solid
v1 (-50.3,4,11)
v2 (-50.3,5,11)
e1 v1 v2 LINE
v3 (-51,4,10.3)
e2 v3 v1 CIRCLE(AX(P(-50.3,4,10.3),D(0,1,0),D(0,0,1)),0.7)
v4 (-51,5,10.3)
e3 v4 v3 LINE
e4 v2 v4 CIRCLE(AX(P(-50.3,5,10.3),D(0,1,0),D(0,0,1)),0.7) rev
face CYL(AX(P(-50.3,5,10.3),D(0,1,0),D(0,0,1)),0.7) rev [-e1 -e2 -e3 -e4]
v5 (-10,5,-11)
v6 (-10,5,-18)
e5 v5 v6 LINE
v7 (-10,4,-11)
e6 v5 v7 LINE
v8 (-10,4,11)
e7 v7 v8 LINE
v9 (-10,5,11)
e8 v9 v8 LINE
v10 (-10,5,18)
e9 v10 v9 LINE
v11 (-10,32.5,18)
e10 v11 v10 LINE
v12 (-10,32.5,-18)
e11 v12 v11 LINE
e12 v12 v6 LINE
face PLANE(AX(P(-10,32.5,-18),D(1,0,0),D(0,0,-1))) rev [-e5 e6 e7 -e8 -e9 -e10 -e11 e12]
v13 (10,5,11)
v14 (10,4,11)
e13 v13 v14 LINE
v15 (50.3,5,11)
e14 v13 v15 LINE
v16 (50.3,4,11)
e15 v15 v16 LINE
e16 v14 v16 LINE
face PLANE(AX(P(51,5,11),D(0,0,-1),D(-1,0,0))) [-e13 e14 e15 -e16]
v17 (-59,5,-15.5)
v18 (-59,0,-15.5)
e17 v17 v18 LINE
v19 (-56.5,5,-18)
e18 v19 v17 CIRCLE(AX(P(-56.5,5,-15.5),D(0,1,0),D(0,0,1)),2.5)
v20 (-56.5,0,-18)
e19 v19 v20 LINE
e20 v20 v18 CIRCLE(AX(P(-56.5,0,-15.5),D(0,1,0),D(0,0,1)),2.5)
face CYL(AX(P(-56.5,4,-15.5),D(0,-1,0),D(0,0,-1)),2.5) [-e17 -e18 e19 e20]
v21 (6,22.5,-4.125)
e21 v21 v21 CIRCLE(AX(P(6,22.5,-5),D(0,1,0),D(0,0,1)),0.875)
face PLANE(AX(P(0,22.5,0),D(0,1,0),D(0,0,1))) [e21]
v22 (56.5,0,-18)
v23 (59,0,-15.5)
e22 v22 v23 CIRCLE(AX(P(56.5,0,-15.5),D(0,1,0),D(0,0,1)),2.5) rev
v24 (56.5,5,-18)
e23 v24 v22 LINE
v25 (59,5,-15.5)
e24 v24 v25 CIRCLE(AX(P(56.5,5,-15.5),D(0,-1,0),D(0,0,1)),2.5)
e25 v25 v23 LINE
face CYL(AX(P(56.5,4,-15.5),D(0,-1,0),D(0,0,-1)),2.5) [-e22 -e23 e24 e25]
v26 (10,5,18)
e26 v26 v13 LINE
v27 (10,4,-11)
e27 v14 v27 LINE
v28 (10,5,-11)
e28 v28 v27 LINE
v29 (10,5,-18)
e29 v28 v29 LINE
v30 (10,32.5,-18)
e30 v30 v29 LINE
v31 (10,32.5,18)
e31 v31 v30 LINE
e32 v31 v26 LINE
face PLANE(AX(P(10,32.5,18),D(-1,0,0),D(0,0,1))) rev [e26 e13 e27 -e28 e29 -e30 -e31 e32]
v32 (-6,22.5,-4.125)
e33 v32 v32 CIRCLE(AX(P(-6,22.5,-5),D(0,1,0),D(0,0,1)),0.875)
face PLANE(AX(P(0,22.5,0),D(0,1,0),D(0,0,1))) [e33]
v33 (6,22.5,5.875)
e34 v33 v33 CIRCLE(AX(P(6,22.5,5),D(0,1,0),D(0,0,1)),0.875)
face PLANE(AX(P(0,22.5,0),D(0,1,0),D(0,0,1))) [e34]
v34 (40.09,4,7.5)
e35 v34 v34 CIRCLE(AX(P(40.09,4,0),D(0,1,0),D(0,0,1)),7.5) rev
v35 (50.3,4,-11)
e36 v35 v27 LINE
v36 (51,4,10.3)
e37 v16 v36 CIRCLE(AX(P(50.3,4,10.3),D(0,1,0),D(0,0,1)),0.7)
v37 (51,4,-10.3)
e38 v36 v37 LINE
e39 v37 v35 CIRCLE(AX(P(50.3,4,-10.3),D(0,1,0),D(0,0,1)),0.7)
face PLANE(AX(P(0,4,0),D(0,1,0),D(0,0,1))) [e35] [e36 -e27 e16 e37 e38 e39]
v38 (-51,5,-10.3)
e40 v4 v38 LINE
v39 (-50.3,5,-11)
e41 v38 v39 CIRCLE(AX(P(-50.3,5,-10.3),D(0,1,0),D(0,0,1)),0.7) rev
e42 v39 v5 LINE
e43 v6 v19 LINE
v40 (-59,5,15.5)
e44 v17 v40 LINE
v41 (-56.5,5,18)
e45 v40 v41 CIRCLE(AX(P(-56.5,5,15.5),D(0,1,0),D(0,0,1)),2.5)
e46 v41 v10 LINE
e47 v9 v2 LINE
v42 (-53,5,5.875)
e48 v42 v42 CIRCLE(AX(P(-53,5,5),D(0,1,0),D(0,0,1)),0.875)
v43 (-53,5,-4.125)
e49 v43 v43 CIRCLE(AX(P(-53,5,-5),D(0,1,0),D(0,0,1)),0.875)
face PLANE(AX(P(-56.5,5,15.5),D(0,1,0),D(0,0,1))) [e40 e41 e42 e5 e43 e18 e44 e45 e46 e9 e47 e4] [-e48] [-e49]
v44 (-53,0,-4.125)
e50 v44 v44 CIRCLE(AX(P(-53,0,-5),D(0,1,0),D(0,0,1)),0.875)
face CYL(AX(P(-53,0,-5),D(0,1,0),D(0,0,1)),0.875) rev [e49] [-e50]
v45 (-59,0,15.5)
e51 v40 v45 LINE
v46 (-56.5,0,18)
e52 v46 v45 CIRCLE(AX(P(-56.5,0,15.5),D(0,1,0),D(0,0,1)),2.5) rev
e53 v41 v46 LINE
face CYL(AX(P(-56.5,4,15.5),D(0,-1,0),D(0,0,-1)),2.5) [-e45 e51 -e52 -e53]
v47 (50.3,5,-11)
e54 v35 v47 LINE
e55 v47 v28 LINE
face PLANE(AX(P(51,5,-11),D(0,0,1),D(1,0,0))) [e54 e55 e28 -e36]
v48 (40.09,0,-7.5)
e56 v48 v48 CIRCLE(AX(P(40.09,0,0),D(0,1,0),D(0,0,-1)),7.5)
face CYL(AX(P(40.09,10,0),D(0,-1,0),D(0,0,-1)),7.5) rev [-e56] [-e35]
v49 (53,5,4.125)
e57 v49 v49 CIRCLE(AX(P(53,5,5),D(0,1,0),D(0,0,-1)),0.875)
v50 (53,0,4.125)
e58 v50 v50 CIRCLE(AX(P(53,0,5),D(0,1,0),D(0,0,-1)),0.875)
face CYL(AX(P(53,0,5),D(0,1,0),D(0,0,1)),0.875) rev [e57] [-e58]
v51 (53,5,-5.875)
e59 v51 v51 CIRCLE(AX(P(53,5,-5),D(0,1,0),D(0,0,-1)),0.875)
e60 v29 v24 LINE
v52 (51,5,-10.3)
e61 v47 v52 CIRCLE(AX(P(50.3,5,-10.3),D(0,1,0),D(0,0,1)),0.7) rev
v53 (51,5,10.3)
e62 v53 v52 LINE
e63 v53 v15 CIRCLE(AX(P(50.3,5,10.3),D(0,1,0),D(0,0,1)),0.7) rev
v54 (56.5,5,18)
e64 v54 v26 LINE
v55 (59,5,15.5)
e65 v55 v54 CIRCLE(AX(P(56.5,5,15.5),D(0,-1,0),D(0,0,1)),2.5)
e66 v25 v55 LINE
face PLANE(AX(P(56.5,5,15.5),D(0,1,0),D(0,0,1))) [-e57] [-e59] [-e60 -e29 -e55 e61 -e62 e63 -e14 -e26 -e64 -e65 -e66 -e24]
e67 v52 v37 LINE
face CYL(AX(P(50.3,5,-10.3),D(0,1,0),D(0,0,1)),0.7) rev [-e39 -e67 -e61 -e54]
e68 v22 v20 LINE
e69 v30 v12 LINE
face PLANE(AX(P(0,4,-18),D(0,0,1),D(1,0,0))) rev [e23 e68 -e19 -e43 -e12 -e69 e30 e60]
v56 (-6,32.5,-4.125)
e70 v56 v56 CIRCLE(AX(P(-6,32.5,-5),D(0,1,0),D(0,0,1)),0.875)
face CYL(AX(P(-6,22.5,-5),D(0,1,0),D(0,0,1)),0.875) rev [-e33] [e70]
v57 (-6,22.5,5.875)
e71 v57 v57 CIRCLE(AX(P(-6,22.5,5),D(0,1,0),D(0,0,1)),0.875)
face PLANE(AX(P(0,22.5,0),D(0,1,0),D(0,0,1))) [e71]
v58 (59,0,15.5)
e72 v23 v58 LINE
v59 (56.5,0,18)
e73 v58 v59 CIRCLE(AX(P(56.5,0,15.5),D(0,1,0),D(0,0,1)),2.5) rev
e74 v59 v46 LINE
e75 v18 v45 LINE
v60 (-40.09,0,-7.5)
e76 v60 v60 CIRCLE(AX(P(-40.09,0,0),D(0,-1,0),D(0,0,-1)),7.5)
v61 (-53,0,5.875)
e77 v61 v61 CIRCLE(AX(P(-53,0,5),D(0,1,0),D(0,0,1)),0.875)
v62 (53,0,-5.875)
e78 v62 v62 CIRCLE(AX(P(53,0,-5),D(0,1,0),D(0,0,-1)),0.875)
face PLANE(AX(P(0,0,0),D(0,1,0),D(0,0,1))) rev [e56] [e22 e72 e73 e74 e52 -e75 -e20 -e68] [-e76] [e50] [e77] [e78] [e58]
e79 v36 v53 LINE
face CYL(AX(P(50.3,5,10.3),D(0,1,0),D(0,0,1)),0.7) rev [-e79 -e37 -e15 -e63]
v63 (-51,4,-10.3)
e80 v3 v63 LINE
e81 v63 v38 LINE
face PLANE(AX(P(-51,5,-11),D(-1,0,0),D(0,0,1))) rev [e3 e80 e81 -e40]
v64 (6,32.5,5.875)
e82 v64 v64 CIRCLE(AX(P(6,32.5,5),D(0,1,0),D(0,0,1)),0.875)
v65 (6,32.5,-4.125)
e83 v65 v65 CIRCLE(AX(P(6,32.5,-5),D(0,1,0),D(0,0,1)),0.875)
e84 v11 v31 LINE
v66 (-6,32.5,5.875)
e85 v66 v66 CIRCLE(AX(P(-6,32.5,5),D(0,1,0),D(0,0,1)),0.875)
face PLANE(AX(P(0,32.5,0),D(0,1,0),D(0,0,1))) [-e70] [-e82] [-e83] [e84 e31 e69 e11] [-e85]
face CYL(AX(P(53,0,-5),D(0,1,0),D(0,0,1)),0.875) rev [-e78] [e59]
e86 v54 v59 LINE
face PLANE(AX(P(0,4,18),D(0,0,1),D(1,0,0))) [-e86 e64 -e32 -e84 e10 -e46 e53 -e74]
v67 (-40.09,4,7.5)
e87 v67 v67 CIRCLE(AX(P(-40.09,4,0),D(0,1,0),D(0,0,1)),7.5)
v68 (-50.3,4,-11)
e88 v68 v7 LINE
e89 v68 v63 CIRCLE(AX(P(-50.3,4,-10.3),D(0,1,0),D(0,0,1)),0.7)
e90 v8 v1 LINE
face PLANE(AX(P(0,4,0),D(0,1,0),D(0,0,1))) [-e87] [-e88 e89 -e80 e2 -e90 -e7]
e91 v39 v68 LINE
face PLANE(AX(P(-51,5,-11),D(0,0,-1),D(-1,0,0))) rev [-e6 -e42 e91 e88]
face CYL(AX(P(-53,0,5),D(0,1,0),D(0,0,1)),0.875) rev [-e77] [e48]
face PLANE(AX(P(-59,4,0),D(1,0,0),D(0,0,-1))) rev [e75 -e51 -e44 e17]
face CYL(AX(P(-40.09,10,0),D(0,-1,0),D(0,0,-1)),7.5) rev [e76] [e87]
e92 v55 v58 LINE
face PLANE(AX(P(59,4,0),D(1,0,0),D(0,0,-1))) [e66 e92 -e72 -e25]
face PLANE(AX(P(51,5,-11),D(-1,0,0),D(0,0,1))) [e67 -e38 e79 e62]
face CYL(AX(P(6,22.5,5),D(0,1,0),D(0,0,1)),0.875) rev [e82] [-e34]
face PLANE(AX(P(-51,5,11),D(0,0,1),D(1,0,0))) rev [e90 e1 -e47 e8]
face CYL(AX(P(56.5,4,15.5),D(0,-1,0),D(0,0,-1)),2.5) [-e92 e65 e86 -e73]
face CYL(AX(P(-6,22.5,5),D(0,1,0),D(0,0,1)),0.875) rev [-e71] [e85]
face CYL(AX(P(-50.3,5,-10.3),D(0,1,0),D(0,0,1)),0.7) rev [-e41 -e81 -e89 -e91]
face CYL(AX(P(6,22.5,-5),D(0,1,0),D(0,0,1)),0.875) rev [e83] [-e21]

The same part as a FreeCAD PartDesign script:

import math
import FreeCAD as App
import Part
import Sketcher

V = App.Vector


def edges_at(feature, points):
    """Names of the edges that pass closest to the given points."""
    edges = feature.Shape.Edges
    near = lambda p: min(range(len(edges)), key=lambda i: edges[i].distToShape(Part.Vertex(*p))[0])
    return sorted({f"Edge{near(p) + 1}" for p in points})

doc = App.newDocument("Part")
body = doc.addObject("PartDesign::Body", "Body")

sketch1 = body.newObject("Sketcher::SketchObject", "Sketch")
sketch1.AttachmentSupport = (doc.getObject("XZ_Plane"), [""])
sketch1.MapMode = "FlatFace"
sketch1.addGeometry([
    Part.ArcOfCircle(Part.Circle(V(-56.5, -15.5, 0), V(0, 0, 1), 2.5), math.radians(180), math.radians(270)),
    Part.LineSegment(V(-59, -15.5, 0), V(-59, 15.5, 0)),
    Part.ArcOfCircle(Part.Circle(V(-56.5, 15.5, 0), V(0, 0, 1), 2.5), math.radians(90), math.radians(180)),
    Part.LineSegment(V(-56.5, 18, 0), V(56.5, 18, 0)),
    Part.ArcOfCircle(Part.Circle(V(56.5, 15.5, 0), V(0, 0, 1), 2.5), math.radians(0), math.radians(90)),
    Part.LineSegment(V(59, 15.5, 0), V(59, -15.5, 0)),
    Part.ArcOfCircle(Part.Circle(V(56.5, -15.5, 0), V(0, 0, 1), 2.5), math.radians(-90), math.radians(0)),
    Part.LineSegment(V(56.5, -18, 0), V(-56.5, -18, 0)),
], False)
sketch1.addConstraint([
    Sketcher.Constraint("Tangent", 0, 1, 1, 1),
    Sketcher.Constraint("Tangent", 1, 2, 2, 2),
    Sketcher.Constraint("Tangent", 2, 1, 3, 1),
    Sketcher.Constraint("Tangent", 3, 2, 4, 2),
    Sketcher.Constraint("Tangent", 4, 1, 5, 1),
    Sketcher.Constraint("Tangent", 5, 2, 6, 2),
    Sketcher.Constraint("Tangent", 6, 1, 7, 1),
    Sketcher.Constraint("Tangent", 7, 2, 0, 2),
    Sketcher.Constraint("Vertical", 1),
    Sketcher.Constraint("Horizontal", 3),
    Sketcher.Constraint("Vertical", 5),
    Sketcher.Constraint("Horizontal", 7),
    Sketcher.Constraint("Equal", 0, 2),
    Sketcher.Constraint("Equal", 2, 4),
    Sketcher.Constraint("Equal", 4, 6),
    Sketcher.Constraint("Symmetric", 0, 3, 4, 3, -1, 1),
    Sketcher.Constraint("Radius", 0, 2.5),
    Sketcher.Constraint("DistanceX", 3, 1, 3, 2, 113.0),
    Sketcher.Constraint("DistanceY", 1, 1, 1, 2, 31.0),
])
pad1 = body.newObject("PartDesign::Pad", "Pad")
pad1.Profile = sketch1
pad1.Length = 4
pad1.Reversed = True

sketch2 = body.newObject("Sketcher::SketchObject", "Sketch001")
sketch2.AttachmentSupport = (doc.getObject("XZ_Plane"), [""])
sketch2.MapMode = "FlatFace"
sketch2.AttachmentOffset = App.Placement(V(0, 0, -4), App.Rotation())
sketch2.addGeometry([
    Part.LineSegment(V(-10, -18, 0), V(-10, 18, 0)),
    Part.LineSegment(V(-10, 18, 0), V(10, 18, 0)),
    Part.LineSegment(V(10, 18, 0), V(10, -18, 0)),
    Part.LineSegment(V(10, -18, 0), V(-10, -18, 0)),
], False)
sketch2.addConstraint([
    Sketcher.Constraint("Coincident", 0, 2, 1, 1),
    Sketcher.Constraint("Coincident", 1, 2, 2, 1),
    Sketcher.Constraint("Coincident", 2, 2, 3, 1),
    Sketcher.Constraint("Coincident", 3, 2, 0, 1),
    Sketcher.Constraint("Vertical", 0),
    Sketcher.Constraint("Horizontal", 1),
    Sketcher.Constraint("Vertical", 2),
    Sketcher.Constraint("Horizontal", 3),
    Sketcher.Constraint("Symmetric", 0, 2, 2, 2, -1, 1),
    Sketcher.Constraint("DistanceX", 1, 1, 1, 2, 20.0),
    Sketcher.Constraint("DistanceY", 0, 1, 0, 2, 36.0),
])
pad2 = body.newObject("PartDesign::Pad", "Pad001")
pad2.Profile = sketch2
pad2.Length = 28.5
pad2.Reversed = True

sketch3 = body.newObject("Sketcher::SketchObject", "Sketch002")
sketch3.AttachmentSupport = (doc.getObject("XZ_Plane"), [""])
sketch3.MapMode = "FlatFace"
sketch3.AttachmentOffset = App.Placement(V(0, 0, -4), App.Rotation())
sketch3.addGeometry([
    Part.LineSegment(V(-51, -11, 0), V(-10, -11, 0)),
    Part.LineSegment(V(-10, -11, 0), V(-10, -18, 0)),
    Part.LineSegment(V(-10, -18, 0), V(-56.5, -18, 0)),
    Part.ArcOfCircle(Part.Circle(V(-56.5, -15.5, 0), V(0, 0, 1), 2.5), math.radians(180), math.radians(270)),
    Part.LineSegment(V(-59, -15.5, 0), V(-59, 15.5, 0)),
    Part.ArcOfCircle(Part.Circle(V(-56.5, 15.5, 0), V(0, 0, 1), 2.5), math.radians(90), math.radians(180)),
    Part.LineSegment(V(-56.5, 18, 0), V(-10, 18, 0)),
    Part.LineSegment(V(-10, 18, 0), V(-10, 11, 0)),
    Part.LineSegment(V(-10, 11, 0), V(-51, 11, 0)),
    Part.LineSegment(V(-51, 11, 0), V(-51, -11, 0)),
], False)
sketch3.addConstraint([
    Sketcher.Constraint("Coincident", 0, 2, 1, 1),
    Sketcher.Constraint("Coincident", 1, 2, 2, 1),
    Sketcher.Constraint("Tangent", 2, 2, 3, 2),
    Sketcher.Constraint("Tangent", 3, 1, 4, 1),
    Sketcher.Constraint("Tangent", 4, 2, 5, 2),
    Sketcher.Constraint("Tangent", 5, 1, 6, 1),
    Sketcher.Constraint("Coincident", 6, 2, 7, 1),
    Sketcher.Constraint("Coincident", 7, 2, 8, 1),
    Sketcher.Constraint("Coincident", 8, 2, 9, 1),
    Sketcher.Constraint("Coincident", 9, 2, 0, 1),
    Sketcher.Constraint("Horizontal", 0),
    Sketcher.Constraint("Vertical", 1),
    Sketcher.Constraint("Horizontal", 2),
    Sketcher.Constraint("Vertical", 4),
    Sketcher.Constraint("Horizontal", 6),
    Sketcher.Constraint("Vertical", 7),
    Sketcher.Constraint("Horizontal", 8),
    Sketcher.Constraint("Vertical", 9),
    Sketcher.Constraint("Equal", 3, 5),
    Sketcher.Constraint("Symmetric", 1, 2, 6, 2, -1),
    Sketcher.Constraint("Equal", 1, 7),
    Sketcher.Constraint("Radius", 3, 2.5),
    Sketcher.Constraint("DistanceX", 0, 1, 0, 2, 41.0),
    Sketcher.Constraint("DistanceY", 1, 2, 1, 1, 7.0),
    Sketcher.Constraint("DistanceY", 4, 1, 4, 2, 31.0),
    Sketcher.Constraint("DistanceX", 2, 2, 2, 1, 46.5),
    Sketcher.Constraint("DistanceX", 0, 2, -1, 1, 10.0),
])
pad3 = body.newObject("PartDesign::Pad", "Pad002")
pad3.Profile = sketch3
pad3.Length = 1
pad3.Reversed = True
doc.recompute()

fillet = body.newObject("PartDesign::Fillet", "Fillet")
fillet.Base = (pad3, edges_at(pad3, [(-51, 4.5, -11)]))
fillet.Radius = 0.7
doc.recompute()

fillet2 = body.newObject("PartDesign::Fillet", "Fillet001")
fillet2.Base = (fillet, edges_at(fillet, [(-51, 4.5, 11)]))
fillet2.Radius = 0.7
doc.recompute()

mirrored = body.newObject("PartDesign::Mirrored", "Mirrored")
mirrored.Originals = [pad3]
mirrored.MirrorPlane = (doc.getObject("YZ_Plane"), [""])
body.Tip = mirrored
doc.recompute()

fillet3 = body.newObject("PartDesign::Fillet", "Fillet002")
fillet3.Base = (mirrored, edges_at(mirrored, [(51, 4.5, 11)]))
fillet3.Radius = 0.7
doc.recompute()

fillet4 = body.newObject("PartDesign::Fillet", "Fillet003")
fillet4.Base = (fillet3, edges_at(fillet3, [(51, 4.5, -11)]))
fillet4.Radius = 0.7

sketch4 = body.newObject("Sketcher::SketchObject", "Sketch003")
sketch4.AttachmentSupport = (doc.getObject("XZ_Plane"), [""])
sketch4.MapMode = "FlatFace"
sketch4.AttachmentOffset = App.Placement(V(0, 0, -5), App.Rotation())
sketch4.addGeometry([
    Part.Circle(V(-53, 5, 0), V(0, 0, 1), 0.9),
    Part.Circle(V(-53, -5, 0), V(0, 0, 1), 0.9),
    Part.Circle(V(53, 5, 0), V(0, 0, 1), 0.9),
    Part.Circle(V(53, -5, 0), V(0, 0, 1), 0.9),
], False)
sketch4.addConstraint([
    Sketcher.Constraint("Equal", 0, 1),
    Sketcher.Constraint("Equal", 1, 2),
    Sketcher.Constraint("Equal", 2, 3),
    Sketcher.Constraint("Symmetric", 1, 3, 2, 3, -1, 1),
    Sketcher.Constraint("Symmetric", 0, 3, 3, 3, -1, 1),
    Sketcher.Constraint("Symmetric", 0, 3, 2, 3, -2),
    Sketcher.Constraint("Diameter", 0, 1.75),
    Sketcher.Constraint("DistanceX", 0, 3, -1, 1, 53.0),
    Sketcher.Constraint("DistanceY", -1, 1, 0, 3, 5.0),
])
pocket1 = body.newObject("PartDesign::Pocket", "Pocket")
pocket1.Profile = sketch4
pocket1.Type = "ThroughAll"
pocket1.Reversed = True

sketch5 = body.newObject("Sketcher::SketchObject", "Sketch004")
sketch5.AttachmentSupport = (doc.getObject("XZ_Plane"), [""])
sketch5.MapMode = "FlatFace"
sketch5.addGeometry(Part.Circle(V(-40, 0, 0), V(0, 0, 1), 8), False)
sketch5.addConstraint([
    Sketcher.Constraint("PointOnObject", 0, 3, -1),
    Sketcher.Constraint("Diameter", 0, 15.0),
    Sketcher.Constraint("DistanceX", 0, 3, -1, 1, 40.09),
])
pocket2 = body.newObject("PartDesign::Pocket", "Pocket001")
pocket2.Profile = sketch5
pocket2.Length = 10
doc.recompute()

mirrored2 = body.newObject("PartDesign::Mirrored", "Mirrored001")
mirrored2.Originals = [pocket2]
mirrored2.MirrorPlane = (doc.getObject("YZ_Plane"), [""])
body.Tip = mirrored2

sketch6 = body.newObject("Sketcher::SketchObject", "Sketch005")
sketch6.AttachmentSupport = (doc.getObject("XZ_Plane"), [""])
sketch6.MapMode = "FlatFace"
sketch6.AttachmentOffset = App.Placement(V(0, 0, -32.5), App.Rotation())
sketch6.addGeometry([
    Part.Circle(V(-6, 5, 0), V(0, 0, 1), 0.9),
    Part.Circle(V(-6, -5, 0), V(0, 0, 1), 0.9),
    Part.Circle(V(6, -5, 0), V(0, 0, 1), 0.9),
    Part.Circle(V(6, 5, 0), V(0, 0, 1), 0.9),
], False)
sketch6.addConstraint([
    Sketcher.Constraint("Equal", 0, 1),
    Sketcher.Constraint("Equal", 1, 2),
    Sketcher.Constraint("Equal", 2, 3),
    Sketcher.Constraint("Symmetric", 0, 3, 2, 3, -1, 1),
    Sketcher.Constraint("Symmetric", 1, 3, 3, 3, -1, 1),
    Sketcher.Constraint("Symmetric", 1, 3, 2, 3, -2),
    Sketcher.Constraint("Diameter", 0, 1.75),
    Sketcher.Constraint("DistanceX", 0, 3, -1, 1, 6.0),
    Sketcher.Constraint("DistanceY", -1, 1, 0, 3, 5.0),
])
pocket3 = body.newObject("PartDesign::Pocket", "Pocket002")
pocket3.Profile = sketch6
pocket3.Length = 10
pocket3.Reversed = True

doc.recompute()
